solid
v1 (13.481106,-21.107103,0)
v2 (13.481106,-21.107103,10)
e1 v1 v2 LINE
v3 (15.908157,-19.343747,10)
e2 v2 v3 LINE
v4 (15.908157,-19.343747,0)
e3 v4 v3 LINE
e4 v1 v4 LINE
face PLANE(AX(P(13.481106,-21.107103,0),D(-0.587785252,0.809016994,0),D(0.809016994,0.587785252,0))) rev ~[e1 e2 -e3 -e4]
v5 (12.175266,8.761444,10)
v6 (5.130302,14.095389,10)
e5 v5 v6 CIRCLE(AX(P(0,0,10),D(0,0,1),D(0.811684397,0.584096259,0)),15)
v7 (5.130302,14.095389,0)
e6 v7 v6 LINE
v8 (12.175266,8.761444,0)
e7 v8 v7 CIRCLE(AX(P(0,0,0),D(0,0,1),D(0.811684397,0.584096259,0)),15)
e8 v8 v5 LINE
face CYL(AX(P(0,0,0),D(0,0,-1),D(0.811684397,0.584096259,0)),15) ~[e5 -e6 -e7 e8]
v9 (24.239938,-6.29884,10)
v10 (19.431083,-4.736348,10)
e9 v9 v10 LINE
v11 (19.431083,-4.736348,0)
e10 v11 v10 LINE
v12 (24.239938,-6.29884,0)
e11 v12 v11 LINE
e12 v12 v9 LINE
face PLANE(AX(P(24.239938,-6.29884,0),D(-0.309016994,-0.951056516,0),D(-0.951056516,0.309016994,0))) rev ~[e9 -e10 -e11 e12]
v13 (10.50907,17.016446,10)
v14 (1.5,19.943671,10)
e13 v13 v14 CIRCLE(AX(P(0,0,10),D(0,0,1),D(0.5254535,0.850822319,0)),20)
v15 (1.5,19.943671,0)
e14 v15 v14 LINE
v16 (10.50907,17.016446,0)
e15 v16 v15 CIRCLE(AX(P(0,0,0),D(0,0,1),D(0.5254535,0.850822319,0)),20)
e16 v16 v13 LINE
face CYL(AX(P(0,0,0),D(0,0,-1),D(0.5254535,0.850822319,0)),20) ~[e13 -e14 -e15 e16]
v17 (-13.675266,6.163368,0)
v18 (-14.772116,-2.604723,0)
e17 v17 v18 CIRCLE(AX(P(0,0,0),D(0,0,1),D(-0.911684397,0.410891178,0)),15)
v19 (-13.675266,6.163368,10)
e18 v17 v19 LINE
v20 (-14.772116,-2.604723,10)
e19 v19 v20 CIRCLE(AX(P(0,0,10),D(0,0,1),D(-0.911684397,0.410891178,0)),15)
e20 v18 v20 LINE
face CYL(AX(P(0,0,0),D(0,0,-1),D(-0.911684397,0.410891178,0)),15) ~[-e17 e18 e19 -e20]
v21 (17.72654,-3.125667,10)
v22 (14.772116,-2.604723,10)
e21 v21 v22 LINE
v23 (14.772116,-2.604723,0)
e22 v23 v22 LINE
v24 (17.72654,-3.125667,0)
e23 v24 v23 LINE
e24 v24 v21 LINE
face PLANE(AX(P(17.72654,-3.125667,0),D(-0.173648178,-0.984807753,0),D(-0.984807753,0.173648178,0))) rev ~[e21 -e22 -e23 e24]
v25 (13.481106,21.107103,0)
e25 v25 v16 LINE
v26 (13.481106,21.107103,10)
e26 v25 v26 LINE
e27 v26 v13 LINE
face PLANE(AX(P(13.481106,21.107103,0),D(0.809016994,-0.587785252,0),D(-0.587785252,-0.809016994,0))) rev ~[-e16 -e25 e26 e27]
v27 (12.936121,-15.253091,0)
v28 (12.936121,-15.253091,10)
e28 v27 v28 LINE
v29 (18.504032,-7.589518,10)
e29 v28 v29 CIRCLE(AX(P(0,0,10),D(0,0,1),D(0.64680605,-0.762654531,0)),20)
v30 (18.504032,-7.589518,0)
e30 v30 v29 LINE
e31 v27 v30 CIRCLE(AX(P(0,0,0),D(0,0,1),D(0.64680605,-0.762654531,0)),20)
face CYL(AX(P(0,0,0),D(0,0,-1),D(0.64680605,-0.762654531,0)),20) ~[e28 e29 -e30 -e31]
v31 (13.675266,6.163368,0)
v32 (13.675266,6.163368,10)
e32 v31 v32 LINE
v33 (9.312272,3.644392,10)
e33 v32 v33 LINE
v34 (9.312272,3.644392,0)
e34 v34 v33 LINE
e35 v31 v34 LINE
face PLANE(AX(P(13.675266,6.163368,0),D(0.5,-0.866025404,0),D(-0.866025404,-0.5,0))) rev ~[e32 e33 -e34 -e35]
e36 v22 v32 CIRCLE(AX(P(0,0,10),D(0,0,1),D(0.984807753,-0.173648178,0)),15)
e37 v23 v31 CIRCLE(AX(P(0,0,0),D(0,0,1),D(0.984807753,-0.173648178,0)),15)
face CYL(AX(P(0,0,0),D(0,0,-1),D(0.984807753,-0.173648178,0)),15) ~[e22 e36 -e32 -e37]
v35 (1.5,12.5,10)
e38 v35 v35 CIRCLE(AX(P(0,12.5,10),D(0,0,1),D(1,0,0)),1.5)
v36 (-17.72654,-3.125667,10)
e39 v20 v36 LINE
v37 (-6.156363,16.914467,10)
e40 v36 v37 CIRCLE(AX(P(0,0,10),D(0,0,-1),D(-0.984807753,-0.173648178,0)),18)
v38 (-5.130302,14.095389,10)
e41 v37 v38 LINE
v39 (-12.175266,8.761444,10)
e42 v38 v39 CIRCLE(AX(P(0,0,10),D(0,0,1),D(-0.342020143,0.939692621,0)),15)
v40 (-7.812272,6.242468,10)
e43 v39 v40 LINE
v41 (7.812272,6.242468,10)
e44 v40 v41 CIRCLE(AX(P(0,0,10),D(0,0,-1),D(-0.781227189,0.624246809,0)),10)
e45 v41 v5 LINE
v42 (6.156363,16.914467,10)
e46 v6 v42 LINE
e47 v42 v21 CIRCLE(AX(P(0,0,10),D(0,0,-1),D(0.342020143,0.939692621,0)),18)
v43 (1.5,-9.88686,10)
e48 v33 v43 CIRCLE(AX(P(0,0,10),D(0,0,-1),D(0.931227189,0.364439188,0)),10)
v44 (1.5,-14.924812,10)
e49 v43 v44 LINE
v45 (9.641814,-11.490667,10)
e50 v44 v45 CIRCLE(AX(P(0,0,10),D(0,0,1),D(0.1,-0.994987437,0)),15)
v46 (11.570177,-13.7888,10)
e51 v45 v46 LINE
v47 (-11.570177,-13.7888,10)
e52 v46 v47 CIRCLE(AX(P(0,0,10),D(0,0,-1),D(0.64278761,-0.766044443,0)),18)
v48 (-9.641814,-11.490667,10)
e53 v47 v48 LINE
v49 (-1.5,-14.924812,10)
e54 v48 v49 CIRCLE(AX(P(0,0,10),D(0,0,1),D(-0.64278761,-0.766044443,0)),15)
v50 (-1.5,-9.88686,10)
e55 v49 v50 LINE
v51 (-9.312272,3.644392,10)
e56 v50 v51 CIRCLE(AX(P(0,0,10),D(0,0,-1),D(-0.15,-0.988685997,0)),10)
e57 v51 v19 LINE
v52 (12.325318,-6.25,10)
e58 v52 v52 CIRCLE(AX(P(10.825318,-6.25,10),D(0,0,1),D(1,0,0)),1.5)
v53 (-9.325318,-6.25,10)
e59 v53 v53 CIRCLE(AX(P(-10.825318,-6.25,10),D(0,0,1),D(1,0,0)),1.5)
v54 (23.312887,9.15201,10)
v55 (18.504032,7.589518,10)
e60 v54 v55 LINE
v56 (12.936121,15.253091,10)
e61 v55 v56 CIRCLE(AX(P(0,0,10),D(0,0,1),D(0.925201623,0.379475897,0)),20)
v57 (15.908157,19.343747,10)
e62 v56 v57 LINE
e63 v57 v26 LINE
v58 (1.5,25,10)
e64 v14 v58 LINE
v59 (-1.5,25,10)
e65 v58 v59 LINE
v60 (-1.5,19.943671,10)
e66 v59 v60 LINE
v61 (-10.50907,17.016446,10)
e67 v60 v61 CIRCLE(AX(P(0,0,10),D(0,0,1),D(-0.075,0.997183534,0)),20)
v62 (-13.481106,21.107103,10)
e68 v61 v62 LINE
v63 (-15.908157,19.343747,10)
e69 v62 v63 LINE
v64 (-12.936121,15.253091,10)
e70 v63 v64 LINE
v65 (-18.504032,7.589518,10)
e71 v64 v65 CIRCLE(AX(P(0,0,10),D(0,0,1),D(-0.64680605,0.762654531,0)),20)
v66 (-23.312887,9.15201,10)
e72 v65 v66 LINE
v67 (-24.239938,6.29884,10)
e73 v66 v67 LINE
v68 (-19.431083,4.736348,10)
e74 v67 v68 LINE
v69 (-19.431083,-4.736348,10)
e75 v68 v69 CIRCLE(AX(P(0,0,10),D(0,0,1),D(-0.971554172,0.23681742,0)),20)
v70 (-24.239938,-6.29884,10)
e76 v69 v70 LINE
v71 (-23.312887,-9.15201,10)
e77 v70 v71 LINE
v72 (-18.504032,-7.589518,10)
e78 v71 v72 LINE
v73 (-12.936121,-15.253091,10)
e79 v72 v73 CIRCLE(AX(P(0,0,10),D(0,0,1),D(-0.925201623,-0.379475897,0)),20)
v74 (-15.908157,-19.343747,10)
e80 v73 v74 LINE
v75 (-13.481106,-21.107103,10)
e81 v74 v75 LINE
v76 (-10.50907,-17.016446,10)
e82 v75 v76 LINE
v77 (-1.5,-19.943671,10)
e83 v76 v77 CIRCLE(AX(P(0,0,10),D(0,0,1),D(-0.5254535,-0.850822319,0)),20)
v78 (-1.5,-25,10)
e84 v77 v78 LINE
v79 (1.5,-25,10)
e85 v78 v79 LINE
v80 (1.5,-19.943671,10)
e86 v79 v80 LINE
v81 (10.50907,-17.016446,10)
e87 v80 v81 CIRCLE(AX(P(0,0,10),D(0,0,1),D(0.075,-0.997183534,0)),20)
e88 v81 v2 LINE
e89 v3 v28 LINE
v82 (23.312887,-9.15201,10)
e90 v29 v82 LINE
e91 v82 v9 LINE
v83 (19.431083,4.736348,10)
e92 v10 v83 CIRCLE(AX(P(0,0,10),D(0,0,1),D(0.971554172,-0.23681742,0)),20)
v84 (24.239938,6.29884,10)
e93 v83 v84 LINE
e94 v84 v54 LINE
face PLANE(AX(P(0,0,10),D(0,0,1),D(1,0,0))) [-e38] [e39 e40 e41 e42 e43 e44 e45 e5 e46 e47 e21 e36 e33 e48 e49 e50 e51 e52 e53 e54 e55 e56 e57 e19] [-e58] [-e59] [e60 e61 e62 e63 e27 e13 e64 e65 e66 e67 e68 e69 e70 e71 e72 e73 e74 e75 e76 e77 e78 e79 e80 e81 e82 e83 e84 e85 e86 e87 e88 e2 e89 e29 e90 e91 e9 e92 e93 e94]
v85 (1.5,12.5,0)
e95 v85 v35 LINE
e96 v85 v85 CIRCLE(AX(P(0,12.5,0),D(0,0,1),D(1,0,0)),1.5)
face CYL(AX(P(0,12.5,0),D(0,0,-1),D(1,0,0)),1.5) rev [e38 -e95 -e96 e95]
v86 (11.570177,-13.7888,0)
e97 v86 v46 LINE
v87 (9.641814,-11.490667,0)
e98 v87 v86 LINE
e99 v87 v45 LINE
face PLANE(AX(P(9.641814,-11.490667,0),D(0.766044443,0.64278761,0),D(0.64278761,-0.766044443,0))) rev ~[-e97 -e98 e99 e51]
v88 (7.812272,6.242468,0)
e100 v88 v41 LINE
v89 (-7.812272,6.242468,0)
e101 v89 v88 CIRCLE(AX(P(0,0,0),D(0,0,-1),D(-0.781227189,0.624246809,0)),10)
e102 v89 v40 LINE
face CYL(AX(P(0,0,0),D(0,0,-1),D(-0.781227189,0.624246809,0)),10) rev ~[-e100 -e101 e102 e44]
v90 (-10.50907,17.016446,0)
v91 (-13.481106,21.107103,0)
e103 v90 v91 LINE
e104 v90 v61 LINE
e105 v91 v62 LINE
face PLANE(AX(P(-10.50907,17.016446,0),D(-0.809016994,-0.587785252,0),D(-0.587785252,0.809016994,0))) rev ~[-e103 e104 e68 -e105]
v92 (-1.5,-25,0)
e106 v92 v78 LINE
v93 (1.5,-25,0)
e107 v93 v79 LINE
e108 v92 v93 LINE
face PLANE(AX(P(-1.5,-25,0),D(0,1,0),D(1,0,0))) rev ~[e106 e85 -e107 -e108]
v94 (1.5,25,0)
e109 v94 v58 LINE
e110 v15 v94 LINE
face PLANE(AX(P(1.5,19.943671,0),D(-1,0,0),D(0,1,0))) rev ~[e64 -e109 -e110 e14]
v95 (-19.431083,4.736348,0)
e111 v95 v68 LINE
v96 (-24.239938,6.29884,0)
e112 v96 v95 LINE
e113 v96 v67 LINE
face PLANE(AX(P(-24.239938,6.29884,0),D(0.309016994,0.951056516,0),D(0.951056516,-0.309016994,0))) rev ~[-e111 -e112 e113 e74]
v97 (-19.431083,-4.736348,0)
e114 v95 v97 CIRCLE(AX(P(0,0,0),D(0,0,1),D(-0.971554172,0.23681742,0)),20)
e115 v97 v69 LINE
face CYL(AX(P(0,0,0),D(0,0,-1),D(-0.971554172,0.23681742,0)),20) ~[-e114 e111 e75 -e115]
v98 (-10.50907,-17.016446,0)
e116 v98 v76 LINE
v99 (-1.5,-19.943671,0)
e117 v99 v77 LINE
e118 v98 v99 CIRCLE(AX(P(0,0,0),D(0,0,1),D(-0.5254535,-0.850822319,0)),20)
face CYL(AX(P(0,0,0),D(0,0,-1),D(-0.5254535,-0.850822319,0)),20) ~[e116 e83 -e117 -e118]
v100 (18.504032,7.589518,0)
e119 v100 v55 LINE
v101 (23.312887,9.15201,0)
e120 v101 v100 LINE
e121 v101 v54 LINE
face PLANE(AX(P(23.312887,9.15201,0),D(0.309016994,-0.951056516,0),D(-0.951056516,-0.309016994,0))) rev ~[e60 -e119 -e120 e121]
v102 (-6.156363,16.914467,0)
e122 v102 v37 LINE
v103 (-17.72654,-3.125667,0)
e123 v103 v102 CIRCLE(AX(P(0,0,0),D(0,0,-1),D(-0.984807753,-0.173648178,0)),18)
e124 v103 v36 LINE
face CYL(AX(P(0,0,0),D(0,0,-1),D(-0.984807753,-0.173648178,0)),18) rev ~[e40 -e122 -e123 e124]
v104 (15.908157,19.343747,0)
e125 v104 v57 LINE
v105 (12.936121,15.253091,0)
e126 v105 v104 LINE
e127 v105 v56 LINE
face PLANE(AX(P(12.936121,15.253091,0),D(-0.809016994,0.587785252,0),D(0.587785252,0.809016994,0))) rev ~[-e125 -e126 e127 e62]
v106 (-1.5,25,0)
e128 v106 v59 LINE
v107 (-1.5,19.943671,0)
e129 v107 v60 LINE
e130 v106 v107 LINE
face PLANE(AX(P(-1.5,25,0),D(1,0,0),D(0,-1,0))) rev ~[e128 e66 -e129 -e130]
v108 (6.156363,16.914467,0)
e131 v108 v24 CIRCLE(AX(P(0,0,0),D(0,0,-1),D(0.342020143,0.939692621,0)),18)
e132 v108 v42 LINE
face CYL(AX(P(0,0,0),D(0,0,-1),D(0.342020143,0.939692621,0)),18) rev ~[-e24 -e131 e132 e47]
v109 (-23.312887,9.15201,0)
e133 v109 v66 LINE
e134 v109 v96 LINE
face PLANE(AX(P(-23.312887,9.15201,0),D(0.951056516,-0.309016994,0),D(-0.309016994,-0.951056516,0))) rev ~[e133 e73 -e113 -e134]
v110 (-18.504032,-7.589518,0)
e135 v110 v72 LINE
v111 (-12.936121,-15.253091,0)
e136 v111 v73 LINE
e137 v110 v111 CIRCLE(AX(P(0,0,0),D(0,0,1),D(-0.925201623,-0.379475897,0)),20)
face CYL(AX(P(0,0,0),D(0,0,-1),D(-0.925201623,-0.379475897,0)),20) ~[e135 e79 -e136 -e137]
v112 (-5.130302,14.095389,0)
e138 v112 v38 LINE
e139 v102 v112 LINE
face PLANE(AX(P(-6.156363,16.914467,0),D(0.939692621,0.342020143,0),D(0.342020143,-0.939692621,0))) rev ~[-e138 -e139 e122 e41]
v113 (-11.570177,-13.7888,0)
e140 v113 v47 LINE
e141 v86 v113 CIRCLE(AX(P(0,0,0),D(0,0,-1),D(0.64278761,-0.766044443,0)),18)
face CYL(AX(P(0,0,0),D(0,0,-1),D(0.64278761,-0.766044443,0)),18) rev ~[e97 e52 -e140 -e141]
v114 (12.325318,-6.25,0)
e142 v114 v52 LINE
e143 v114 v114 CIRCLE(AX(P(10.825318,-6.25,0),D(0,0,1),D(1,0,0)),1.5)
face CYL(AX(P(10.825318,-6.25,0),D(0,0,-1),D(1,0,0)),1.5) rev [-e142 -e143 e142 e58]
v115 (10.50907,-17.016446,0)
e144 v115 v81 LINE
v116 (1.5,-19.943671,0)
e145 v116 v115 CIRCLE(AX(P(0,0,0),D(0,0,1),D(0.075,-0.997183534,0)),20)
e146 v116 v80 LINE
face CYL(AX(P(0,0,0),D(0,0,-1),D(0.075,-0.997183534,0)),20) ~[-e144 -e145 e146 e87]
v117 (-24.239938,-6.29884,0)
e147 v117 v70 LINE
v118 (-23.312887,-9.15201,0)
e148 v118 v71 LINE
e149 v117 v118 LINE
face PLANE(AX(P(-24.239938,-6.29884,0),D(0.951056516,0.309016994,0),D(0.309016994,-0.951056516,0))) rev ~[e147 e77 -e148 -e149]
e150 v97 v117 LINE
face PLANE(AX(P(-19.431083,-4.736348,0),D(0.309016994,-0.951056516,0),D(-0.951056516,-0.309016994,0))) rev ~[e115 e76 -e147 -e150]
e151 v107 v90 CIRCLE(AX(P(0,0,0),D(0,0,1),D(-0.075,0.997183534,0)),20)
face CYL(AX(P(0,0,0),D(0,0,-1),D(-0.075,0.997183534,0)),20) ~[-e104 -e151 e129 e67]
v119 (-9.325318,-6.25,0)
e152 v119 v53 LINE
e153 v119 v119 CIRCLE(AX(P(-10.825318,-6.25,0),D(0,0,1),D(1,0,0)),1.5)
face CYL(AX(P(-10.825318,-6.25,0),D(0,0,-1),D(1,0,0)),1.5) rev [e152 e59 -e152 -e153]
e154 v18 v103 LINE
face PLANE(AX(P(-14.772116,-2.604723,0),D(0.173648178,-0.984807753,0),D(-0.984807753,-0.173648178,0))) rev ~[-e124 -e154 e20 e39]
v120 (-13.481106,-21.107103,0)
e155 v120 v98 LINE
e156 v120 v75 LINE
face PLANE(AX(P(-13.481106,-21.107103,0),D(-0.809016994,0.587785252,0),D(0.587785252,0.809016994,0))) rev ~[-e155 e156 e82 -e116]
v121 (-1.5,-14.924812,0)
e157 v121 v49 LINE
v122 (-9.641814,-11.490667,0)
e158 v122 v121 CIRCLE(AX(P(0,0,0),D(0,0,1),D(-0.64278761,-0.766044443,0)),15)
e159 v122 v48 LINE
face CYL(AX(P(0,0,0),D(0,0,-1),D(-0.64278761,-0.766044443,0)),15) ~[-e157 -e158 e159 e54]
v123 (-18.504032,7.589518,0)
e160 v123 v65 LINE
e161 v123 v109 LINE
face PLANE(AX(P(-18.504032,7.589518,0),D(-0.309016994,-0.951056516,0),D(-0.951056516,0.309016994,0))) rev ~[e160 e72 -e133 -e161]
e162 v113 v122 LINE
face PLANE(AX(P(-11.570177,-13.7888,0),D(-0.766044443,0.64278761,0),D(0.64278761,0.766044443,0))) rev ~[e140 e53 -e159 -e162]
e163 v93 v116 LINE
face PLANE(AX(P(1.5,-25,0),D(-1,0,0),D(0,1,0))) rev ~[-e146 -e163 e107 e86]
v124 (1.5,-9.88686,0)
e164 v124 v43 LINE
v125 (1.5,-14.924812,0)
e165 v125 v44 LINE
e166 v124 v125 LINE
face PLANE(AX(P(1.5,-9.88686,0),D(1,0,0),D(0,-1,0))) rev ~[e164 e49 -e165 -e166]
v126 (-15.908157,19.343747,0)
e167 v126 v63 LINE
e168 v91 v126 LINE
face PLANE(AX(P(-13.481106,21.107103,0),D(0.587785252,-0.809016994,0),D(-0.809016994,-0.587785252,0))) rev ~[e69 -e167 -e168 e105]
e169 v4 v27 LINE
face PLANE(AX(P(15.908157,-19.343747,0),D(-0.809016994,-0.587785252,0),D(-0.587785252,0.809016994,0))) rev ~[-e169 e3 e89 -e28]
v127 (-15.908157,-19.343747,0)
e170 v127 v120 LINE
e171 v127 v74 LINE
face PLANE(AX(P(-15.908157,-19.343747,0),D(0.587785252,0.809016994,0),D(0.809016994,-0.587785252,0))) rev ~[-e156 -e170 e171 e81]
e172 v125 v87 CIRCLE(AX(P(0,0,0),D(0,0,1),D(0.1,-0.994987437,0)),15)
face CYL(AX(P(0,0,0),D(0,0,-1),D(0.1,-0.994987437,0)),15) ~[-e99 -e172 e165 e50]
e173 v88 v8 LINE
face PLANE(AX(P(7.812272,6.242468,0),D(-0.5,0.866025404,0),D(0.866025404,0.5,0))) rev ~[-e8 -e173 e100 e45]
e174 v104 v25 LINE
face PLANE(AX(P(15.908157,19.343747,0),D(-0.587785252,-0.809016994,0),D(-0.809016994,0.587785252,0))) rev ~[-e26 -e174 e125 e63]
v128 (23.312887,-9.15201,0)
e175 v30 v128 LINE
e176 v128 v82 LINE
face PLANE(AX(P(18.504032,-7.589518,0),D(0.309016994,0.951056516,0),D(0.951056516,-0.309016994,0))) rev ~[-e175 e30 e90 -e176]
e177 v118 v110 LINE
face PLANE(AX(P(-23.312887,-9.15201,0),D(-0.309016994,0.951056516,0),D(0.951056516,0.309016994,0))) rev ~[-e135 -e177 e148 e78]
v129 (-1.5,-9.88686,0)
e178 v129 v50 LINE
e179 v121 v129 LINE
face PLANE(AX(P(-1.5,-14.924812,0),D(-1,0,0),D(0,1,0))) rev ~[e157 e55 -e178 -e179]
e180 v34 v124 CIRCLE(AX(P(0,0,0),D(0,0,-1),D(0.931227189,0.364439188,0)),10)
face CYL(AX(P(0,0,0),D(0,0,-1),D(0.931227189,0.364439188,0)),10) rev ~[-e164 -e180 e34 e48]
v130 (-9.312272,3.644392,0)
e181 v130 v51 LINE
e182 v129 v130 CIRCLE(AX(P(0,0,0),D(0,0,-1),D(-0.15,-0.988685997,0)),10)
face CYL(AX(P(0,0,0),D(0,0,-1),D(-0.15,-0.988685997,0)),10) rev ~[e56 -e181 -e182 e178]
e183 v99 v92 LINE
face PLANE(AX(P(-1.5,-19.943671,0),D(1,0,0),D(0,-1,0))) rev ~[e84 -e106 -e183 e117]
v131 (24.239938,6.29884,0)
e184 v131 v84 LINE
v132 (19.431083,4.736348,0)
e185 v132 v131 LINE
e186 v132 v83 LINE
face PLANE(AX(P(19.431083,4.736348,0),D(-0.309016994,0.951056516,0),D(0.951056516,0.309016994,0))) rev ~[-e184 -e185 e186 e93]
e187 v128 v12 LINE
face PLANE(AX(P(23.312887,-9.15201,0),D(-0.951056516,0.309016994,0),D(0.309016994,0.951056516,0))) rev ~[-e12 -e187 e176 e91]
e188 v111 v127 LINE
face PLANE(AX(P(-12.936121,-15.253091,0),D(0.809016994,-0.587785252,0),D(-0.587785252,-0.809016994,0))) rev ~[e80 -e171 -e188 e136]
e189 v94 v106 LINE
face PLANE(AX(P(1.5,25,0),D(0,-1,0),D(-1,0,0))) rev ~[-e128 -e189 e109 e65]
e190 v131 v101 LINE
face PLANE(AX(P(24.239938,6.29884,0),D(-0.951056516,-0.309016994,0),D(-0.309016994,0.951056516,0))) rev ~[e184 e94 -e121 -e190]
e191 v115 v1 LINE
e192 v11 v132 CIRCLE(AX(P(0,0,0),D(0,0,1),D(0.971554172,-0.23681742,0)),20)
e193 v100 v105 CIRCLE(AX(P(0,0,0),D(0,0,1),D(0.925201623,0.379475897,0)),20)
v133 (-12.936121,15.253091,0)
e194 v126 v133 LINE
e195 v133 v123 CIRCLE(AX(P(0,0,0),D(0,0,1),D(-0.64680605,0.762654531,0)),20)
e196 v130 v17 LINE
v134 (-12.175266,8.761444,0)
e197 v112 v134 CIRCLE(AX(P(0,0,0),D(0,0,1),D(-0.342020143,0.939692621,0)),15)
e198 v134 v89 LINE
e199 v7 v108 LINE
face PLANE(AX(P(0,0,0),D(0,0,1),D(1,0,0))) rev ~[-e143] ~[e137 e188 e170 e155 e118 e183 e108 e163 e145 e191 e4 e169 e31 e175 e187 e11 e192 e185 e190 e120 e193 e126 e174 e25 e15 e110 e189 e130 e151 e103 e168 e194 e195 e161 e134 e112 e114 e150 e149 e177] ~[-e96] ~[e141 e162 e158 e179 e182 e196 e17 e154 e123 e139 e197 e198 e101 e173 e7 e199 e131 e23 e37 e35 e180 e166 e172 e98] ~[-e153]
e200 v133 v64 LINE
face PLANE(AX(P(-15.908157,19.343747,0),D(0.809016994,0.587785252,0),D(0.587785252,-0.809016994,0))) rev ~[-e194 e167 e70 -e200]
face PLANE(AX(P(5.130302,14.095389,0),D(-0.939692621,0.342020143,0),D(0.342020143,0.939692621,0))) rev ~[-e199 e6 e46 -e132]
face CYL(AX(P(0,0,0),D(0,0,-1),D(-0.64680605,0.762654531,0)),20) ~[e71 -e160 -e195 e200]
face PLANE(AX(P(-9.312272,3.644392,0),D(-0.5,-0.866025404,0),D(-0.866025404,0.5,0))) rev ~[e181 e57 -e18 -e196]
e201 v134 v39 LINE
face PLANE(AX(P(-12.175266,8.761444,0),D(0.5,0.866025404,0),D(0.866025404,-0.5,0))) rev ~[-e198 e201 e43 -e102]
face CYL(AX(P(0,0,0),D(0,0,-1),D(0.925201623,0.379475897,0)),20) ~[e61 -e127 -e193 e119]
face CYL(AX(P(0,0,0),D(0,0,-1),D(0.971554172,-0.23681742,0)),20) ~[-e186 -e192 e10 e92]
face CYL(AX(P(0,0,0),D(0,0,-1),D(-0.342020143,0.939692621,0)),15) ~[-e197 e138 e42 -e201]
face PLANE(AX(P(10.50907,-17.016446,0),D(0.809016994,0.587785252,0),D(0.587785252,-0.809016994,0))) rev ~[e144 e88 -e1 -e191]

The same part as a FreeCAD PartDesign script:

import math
import FreeCAD as App
import Part
import Sketcher
from FreeCAD import Vector
Q = App.Units.Quantity

doc = App.newDocument("Part")
params = doc.addObject("Spreadsheet::Sheet", "Params")
for row, (alias, value) in enumerate([
    ("sketch1_diameter", "3 mm"),
    ("sketch1_radius", "20 mm"),
    ("sketch1_width", "3 mm"),
    ("sketch1_length", "3 mm"),
    ("pad1_length", "10 mm"),
    ("sketch2_radius", "10 mm"),
    ("sketch2_radius2", "15 mm"),
    ("sketch2_radius3", "18 mm"),
    ("pocket1_length", "10 mm"),
], start=1):
    params.set(f"A{row}", alias)
    params.set(f"B{row}", "=" + value)
    params.setAlias(f"B{row}", alias)

body = doc.addObject("PartDesign::Body", "Body")

sketch1 = doc.addObject("Sketcher::SketchObject", "Sketch")
body.addObject(sketch1)
sketch1.AttachmentSupport = (doc.XY_Plane, [""])
sketch1.MapMode = "FlatFace"
sketch1.addGeometry(Part.LineSegment(Vector(1.5, 19.943671, 0), Vector(1.5, 25, 0)), False)
sketch1.addGeometry(Part.LineSegment(Vector(1.5, 25, 0), Vector(-1.5, 25, 0)), False)
sketch1.addGeometry(Part.LineSegment(Vector(-1.5, 25, 0), Vector(-1.5, 19.943671, 0)), False)
sketch1.addGeometry(Part.ArcOfCircle(Part.Circle(Vector(0, 0, 0), Vector(0, 0, 1), 20), math.radians(94.301222), math.radians(121.698778)), False)
sketch1.addGeometry(Part.LineSegment(Vector(-10.50907, 17.016446, 0), Vector(-13.481106, 21.107103, 0)), False)
sketch1.addGeometry(Part.LineSegment(Vector(-13.481106, 21.107103, 0), Vector(-15.908157, 19.343747, 0)), False)
sketch1.addGeometry(Part.LineSegment(Vector(-15.908157, 19.343747, 0), Vector(-12.936121, 15.253091, 0)), False)
sketch1.addGeometry(Part.ArcOfCircle(Part.Circle(Vector(0, 0, 0), Vector(0, 0, 1), 20), math.radians(130.301222), math.radians(157.698778)), False)
sketch1.addGeometry(Part.LineSegment(Vector(-18.504032, 7.589518, 0), Vector(-23.312887, 9.15201, 0)), False)
sketch1.addGeometry(Part.LineSegment(Vector(-23.312887, 9.15201, 0), Vector(-24.239938, 6.29884, 0)), False)
sketch1.addGeometry(Part.LineSegment(Vector(-24.239938, 6.29884, 0), Vector(-19.431083, 4.736348, 0)), False)
sketch1.addGeometry(Part.ArcOfCircle(Part.Circle(Vector(0, 0, 0), Vector(0, 0, 1), 20), math.radians(166.301222), math.radians(193.698778)), False)
sketch1.addGeometry(Part.LineSegment(Vector(-19.431083, -4.736348, 0), Vector(-24.239938, -6.29884, 0)), False)
sketch1.addGeometry(Part.LineSegment(Vector(-24.239938, -6.29884, 0), Vector(-23.312887, -9.15201, 0)), False)
sketch1.addGeometry(Part.LineSegment(Vector(-23.312887, -9.15201, 0), Vector(-18.504032, -7.589518, 0)), False)
sketch1.addGeometry(Part.ArcOfCircle(Part.Circle(Vector(0, 0, 0), Vector(0, 0, 1), 20), math.radians(-157.698778), math.radians(-130.301222)), False)
sketch1.addGeometry(Part.LineSegment(Vector(-12.936121, -15.253091, 0), Vector(-15.908157, -19.343747, 0)), False)
sketch1.addGeometry(Part.LineSegment(Vector(-15.908157, -19.343747, 0), Vector(-13.481106, -21.107103, 0)), False)
sketch1.addGeometry(Part.LineSegment(Vector(-13.481106, -21.107103, 0), Vector(-10.50907, -17.016446, 0)), False)
sketch1.addGeometry(Part.ArcOfCircle(Part.Circle(Vector(0, 0, 0), Vector(0, 0, 1), 20), math.radians(-121.698778), math.radians(-94.301222)), False)
sketch1.addGeometry(Part.LineSegment(Vector(-1.5, -19.943671, 0), Vector(-1.5, -25, 0)), False)
sketch1.addGeometry(Part.LineSegment(Vector(-1.5, -25, 0), Vector(1.5, -25, 0)), False)
sketch1.addGeometry(Part.LineSegment(Vector(1.5, -25, 0), Vector(1.5, -19.943671, 0)), False)
sketch1.addGeometry(Part.ArcOfCircle(Part.Circle(Vector(0, 0, 0), Vector(0, 0, 1), 20), math.radians(-85.698778), math.radians(-58.301222)), False)
sketch1.addGeometry(Part.LineSegment(Vector(10.50907, -17.016446, 0), Vector(13.481106, -21.107103, 0)), False)
sketch1.addGeometry(Part.LineSegment(Vector(13.481106, -21.107103, 0), Vector(15.908157, -19.343747, 0)), False)
sketch1.addGeometry(Part.LineSegment(Vector(15.908157, -19.343747, 0), Vector(12.936121, -15.253091, 0)), False)
sketch1.addGeometry(Part.ArcOfCircle(Part.Circle(Vector(0, 0, 0), Vector(0, 0, 1), 20), math.radians(-49.698778), math.radians(-22.301222)), False)
sketch1.addGeometry(Part.LineSegment(Vector(18.504032, -7.589518, 0), Vector(23.312887, -9.15201, 0)), False)
sketch1.addGeometry(Part.LineSegment(Vector(23.312887, -9.15201, 0), Vector(24.239938, -6.29884, 0)), False)
sketch1.addGeometry(Part.LineSegment(Vector(24.239938, -6.29884, 0), Vector(19.431083, -4.736348, 0)), False)
sketch1.addGeometry(Part.ArcOfCircle(Part.Circle(Vector(0, 0, 0), Vector(0, 0, 1), 20), math.radians(-13.698778), math.radians(13.698778)), False)
sketch1.addGeometry(Part.LineSegment(Vector(19.431083, 4.736348, 0), Vector(24.239938, 6.29884, 0)), False)
sketch1.addGeometry(Part.LineSegment(Vector(24.239938, 6.29884, 0), Vector(23.312887, 9.15201, 0)), False)
sketch1.addGeometry(Part.LineSegment(Vector(23.312887, 9.15201, 0), Vector(18.504032, 7.589518, 0)), False)
sketch1.addGeometry(Part.ArcOfCircle(Part.Circle(Vector(0, 0, 0), Vector(0, 0, 1), 20), math.radians(22.301222), math.radians(49.698778)), False)
sketch1.addGeometry(Part.LineSegment(Vector(12.936121, 15.253091, 0), Vector(15.908157, 19.343747, 0)), False)
sketch1.addGeometry(Part.LineSegment(Vector(15.908157, 19.343747, 0), Vector(13.481106, 21.107103, 0)), False)
sketch1.addGeometry(Part.LineSegment(Vector(13.481106, 21.107103, 0), Vector(10.50907, 17.016446, 0)), False)
sketch1.addGeometry(Part.ArcOfCircle(Part.Circle(Vector(0, 0, 0), Vector(0, 0, 1), 20), math.radians(58.301222), math.radians(85.698778)), False)
sketch1.addGeometry(Part.Circle(Vector(-10.825318, -6.25, 0), Vector(0, 0, 1), 1.5), False)
sketch1.addGeometry(Part.Circle(Vector(10.825318, -6.25, 0), Vector(0, 0, 1), 1.5), False)
sketch1.addGeometry(Part.Circle(Vector(0, 12.5, 0), Vector(0, 0, 1), 1.5), False)
sketch1.addConstraint(Sketcher.Constraint("Coincident", 0, 2, 1, 1))
sketch1.addConstraint(Sketcher.Constraint("Coincident", 1, 2, 2, 1))
sketch1.addConstraint(Sketcher.Constraint("Coincident", 2, 2, 3, 1))
sketch1.addConstraint(Sketcher.Constraint("Coincident", 3, 2, 4, 1))
sketch1.addConstraint(Sketcher.Constraint("Coincident", 4, 2, 5, 1))
sketch1.addConstraint(Sketcher.Constraint("Coincident", 5, 2, 6, 1))
sketch1.addConstraint(Sketcher.Constraint("Coincident", 6, 2, 7, 1))
sketch1.addConstraint(Sketcher.Constraint("Coincident", 7, 2, 8, 1))
sketch1.addConstraint(Sketcher.Constraint("Coincident", 8, 2, 9, 1))
sketch1.addConstraint(Sketcher.Constraint("Coincident", 9, 2, 10, 1))
sketch1.addConstraint(Sketcher.Constraint("Coincident", 10, 2, 11, 1))
sketch1.addConstraint(Sketcher.Constraint("Coincident", 11, 2, 12, 1))
sketch1.addConstraint(Sketcher.Constraint("Coincident", 12, 2, 13, 1))
sketch1.addConstraint(Sketcher.Constraint("Coincident", 13, 2, 14, 1))
sketch1.addConstraint(Sketcher.Constraint("Coincident", 14, 2, 15, 1))
sketch1.addConstraint(Sketcher.Constraint("Coincident", 15, 2, 16, 1))
sketch1.addConstraint(Sketcher.Constraint("Coincident", 16, 2, 17, 1))
sketch1.addConstraint(Sketcher.Constraint("Coincident", 17, 2, 18, 1))
sketch1.addConstraint(Sketcher.Constraint("Coincident", 18, 2, 19, 1))
sketch1.addConstraint(Sketcher.Constraint("Coincident", 19, 2, 20, 1))
sketch1.addConstraint(Sketcher.Constraint("Coincident", 20, 2, 21, 1))
sketch1.addConstraint(Sketcher.Constraint("Coincident", 21, 2, 22, 1))
sketch1.addConstraint(Sketcher.Constraint("Coincident", 22, 2, 23, 1))
sketch1.addConstraint(Sketcher.Constraint("Coincident", 23, 2, 24, 1))
sketch1.addConstraint(Sketcher.Constraint("Coincident", 24, 2, 25, 1))
sketch1.addConstraint(Sketcher.Constraint("Coincident", 25, 2, 26, 1))
sketch1.addConstraint(Sketcher.Constraint("Coincident", 26, 2, 27, 1))
sketch1.addConstraint(Sketcher.Constraint("Coincident", 27, 2, 28, 1))
sketch1.addConstraint(Sketcher.Constraint("Coincident", 28, 2, 29, 1))
sketch1.addConstraint(Sketcher.Constraint("Coincident", 29, 2, 30, 1))
sketch1.addConstraint(Sketcher.Constraint("Coincident", 30, 2, 31, 1))
sketch1.addConstraint(Sketcher.Constraint("Coincident", 31, 2, 32, 1))
sketch1.addConstraint(Sketcher.Constraint("Coincident", 32, 2, 33, 1))
sketch1.addConstraint(Sketcher.Constraint("Coincident", 33, 2, 34, 1))
sketch1.addConstraint(Sketcher.Constraint("Coincident", 34, 2, 35, 1))
sketch1.addConstraint(Sketcher.Constraint("Coincident", 35, 2, 36, 1))
sketch1.addConstraint(Sketcher.Constraint("Coincident", 36, 2, 37, 1))
sketch1.addConstraint(Sketcher.Constraint("Coincident", 37, 2, 38, 1))
sketch1.addConstraint(Sketcher.Constraint("Coincident", 38, 2, 39, 1))
sketch1.addConstraint(Sketcher.Constraint("Coincident", 39, 2, 0, 1))
sketch1.addConstraint(Sketcher.Constraint("Vertical", 0))
sketch1.addConstraint(Sketcher.Constraint("Horizontal", 1))
sketch1.addConstraint(Sketcher.Constraint("Vertical", 2))
sketch1.addConstraint(Sketcher.Constraint("Vertical", 20))
sketch1.addConstraint(Sketcher.Constraint("Horizontal", 21))
sketch1.addConstraint(Sketcher.Constraint("Vertical", 22))
sketch1.addConstraint(Sketcher.Constraint("Coincident", 3, 3, -1, 1))
sketch1.addConstraint(Sketcher.Constraint("Coincident", 7, 3, -1, 1))
sketch1.addConstraint(Sketcher.Constraint("Coincident", 11, 3, -1, 1))
sketch1.addConstraint(Sketcher.Constraint("Coincident", 15, 3, -1, 1))
sketch1.addConstraint(Sketcher.Constraint("Coincident", 19, 3, -1, 1))
sketch1.addConstraint(Sketcher.Constraint("Coincident", 23, 3, -1, 1))
sketch1.addConstraint(Sketcher.Constraint("Coincident", 27, 3, -1, 1))
sketch1.addConstraint(Sketcher.Constraint("Coincident", 31, 3, -1, 1))
sketch1.addConstraint(Sketcher.Constraint("Coincident", 35, 3, -1, 1))
sketch1.addConstraint(Sketcher.Constraint("Coincident", 39, 3, -1, 1))
sketch1.addConstraint(Sketcher.Constraint("Equal", 3, 7))
sketch1.addConstraint(Sketcher.Constraint("Equal", 7, 11))
sketch1.addConstraint(Sketcher.Constraint("Equal", 11, 15))
sketch1.addConstraint(Sketcher.Constraint("Equal", 15, 19))
sketch1.addConstraint(Sketcher.Constraint("Equal", 19, 23))
sketch1.addConstraint(Sketcher.Constraint("Equal", 23, 27))
sketch1.addConstraint(Sketcher.Constraint("Equal", 27, 31))
sketch1.addConstraint(Sketcher.Constraint("Equal", 31, 35))
sketch1.addConstraint(Sketcher.Constraint("Equal", 35, 39))
sketch1.addConstraint(Sketcher.Constraint("Equal", 40, 41))
sketch1.addConstraint(Sketcher.Constraint("Equal", 41, 42))
sketch1.addConstraint(Sketcher.Constraint("Symmetric", 0, 2, 20, 2, -1, 1))
sketch1.addConstraint(Sketcher.Constraint("Symmetric", 4, 2, 24, 2, -1, 1))
sketch1.addConstraint(Sketcher.Constraint("Symmetric", 5, 2, 25, 2, -1, 1))
sketch1.addConstraint(Sketcher.Constraint("Symmetric", 8, 2, 28, 2, -1, 1))
sketch1.addConstraint(Sketcher.Constraint("Symmetric", 9, 2, 29, 2, -1, 1))
sketch1.addConstraint(Sketcher.Constraint("Symmetric", 12, 2, 32, 2, -1, 1))
sketch1.addConstraint(Sketcher.Constraint("Symmetric", 13, 2, 33, 2, -1, 1))
sketch1.addConstraint(Sketcher.Constraint("Symmetric", 16, 2, 36, 2, -1, 1))
sketch1.addConstraint(Sketcher.Constraint("Symmetric", 17, 2, 37, 2, -1, 1))
sketch1.addConstraint(Sketcher.Constraint("Symmetric", 40, 3, 41, 3, -2))
sketch1.addConstraint(Sketcher.Constraint("Symmetric", 17, 2, 24, 2, -2))
sketch1.addConstraint(Sketcher.Constraint("Symmetric", 16, 2, 25, 2, -2))
sketch1.addConstraint(Sketcher.Constraint("Symmetric", 13, 2, 28, 2, -2))
sketch1.addConstraint(Sketcher.Constraint("Symmetric", 12, 2, 29, 2, -2))
sketch1.addConstraint(Sketcher.Constraint("PointOnObject", 42, 3, -2))
sketch1.addConstraint(Sketcher.Constraint("Perpendicular", 4, 5))
sketch1.addConstraint(Sketcher.Constraint("Perpendicular", 5, 6))
sketch1.addConstraint(Sketcher.Constraint("Perpendicular", 8, 9))
sketch1.addConstraint(Sketcher.Constraint("Perpendicular", 9, 10))
sketch1.addConstraint(Sketcher.Constraint("Perpendicular", 12, 13))
sketch1.addConstraint(Sketcher.Constraint("Perpendicular", 13, 14))
sketch1.addConstraint(Sketcher.Constraint("Perpendicular", 16, 17))
sketch1.addConstraint(Sketcher.Constraint("Perpendicular", 17, 18))
sketch1.addConstraint(Sketcher.Constraint("Parallel", 6, 24))
sketch1.addConstraint(Sketcher.Constraint("Perpendicular", 25, 26))
sketch1.addConstraint(Sketcher.Constraint("Parallel", 10, 28))
sketch1.addConstraint(Sketcher.Constraint("Perpendicular", 29, 30))
sketch1.addConstraint(Sketcher.Constraint("Parallel", 14, 32))
sketch1.addConstraint(Sketcher.Constraint("Perpendicular", 33, 34))
sketch1.addConstraint(Sketcher.Constraint("Parallel", 18, 36))
sketch1.addConstraint(Sketcher.Constraint("Perpendicular", 37, 38))
sketch1.addConstraint(Sketcher.Constraint("Horizontal", 19, 2, 22, 2))
sketch1.addConstraint(Sketcher.Constraint("Horizontal", 2, 2, 39, 2))
sketch1.addConstraint(Sketcher.Constraint("Equal", 4, 6))
sketch1.addConstraint(Sketcher.Constraint("Equal", 6, 8))
sketch1.addConstraint(Sketcher.Constraint("Equal", 5, 9))
sketch1.addConstraint(Sketcher.Constraint("Equal", 8, 10))
sketch1.addConstraint(Sketcher.Constraint("Diameter", 40, Q("3 mm")))
sketch1.addConstraint(Sketcher.Constraint("Radius", 3, Q("20 mm")))
sketch1.addConstraint(Sketcher.Constraint("DistanceX", 1, 2, 1, 1, Q("3 mm")))
sketch1.addConstraint(Sketcher.Constraint("Angle", 4, Q("126 deg")))
sketch1.addConstraint(Sketcher.Constraint("Angle", 8, Q("162 deg")))
sketch1.addConstraint(Sketcher.Constraint("Distance", 5, Q("3 mm")))
sketch1.addConstraint(Sketcher.Constraint("DistanceY", -1, 1, 0, 2, Q("25 mm")))
sketch1.addConstraint(Sketcher.Constraint("DistanceY", -1, 1, 42, 3, Q("12.5 mm")))
sketch1.addConstraint(Sketcher.Constraint("DistanceY", 40, 3, -1, 1, Q("6.25 mm")))
sketch1.addConstraint(Sketcher.Constraint("DistanceY", 3, 2, 5, 2, Q("2.327301 mm")))
sketch1.addConstraint(Sketcher.Constraint("DistanceX", 12, 2, 40, 3, Q("13.414621 mm")))
sketch1.setExpression("Constraints[104]", "Params.sketch1_diameter")
sketch1.setExpression("Constraints[105]", "Params.sketch1_radius")
sketch1.setExpression("Constraints[106]", "Params.sketch1_width")
sketch1.setExpression("Constraints[109]", "Params.sketch1_length")
pad1 = doc.addObject("PartDesign::Pad", "Pad")
body.addObject(pad1)
pad1.Profile = sketch1
pad1.setExpression("Length", "Params.pad1_length")

sketch2 = doc.addObject("Sketcher::SketchObject", "Sketch001")
body.addObject(sketch2)
sketch2.AttachmentSupport = (doc.XY_Plane, [""])
sketch2.MapMode = "FlatFace"
sketch2.addGeometry(Part.LineSegment(Vector(-13.675266, 6.163368, 0), Vector(-9.312272, 3.644392, 0)), False)
sketch2.addGeometry(Part.ArcOfCircle(Part.Circle(Vector(0, 0, 0), Vector(0, 0, 1), 10), math.radians(158.626927), math.radians(261.373073)), False)
sketch2.addGeometry(Part.LineSegment(Vector(-1.5, -9.88686, 0), Vector(-1.5, -14.924812, 0)), False)
sketch2.addGeometry(Part.ArcOfCircle(Part.Circle(Vector(0, 0, 0), Vector(0, 0, 1), 15), math.radians(-130), math.radians(-95.73917)), False)
sketch2.addGeometry(Part.LineSegment(Vector(-9.641814, -11.490667, 0), Vector(-11.570177, -13.7888, 0)), False)
sketch2.addGeometry(Part.ArcOfCircle(Part.Circle(Vector(0, 0, 0), Vector(0, 0, 1), 18), math.radians(-130), math.radians(-50)), False)
sketch2.addGeometry(Part.LineSegment(Vector(11.570177, -13.7888, 0), Vector(9.641814, -11.490667, 0)), False)
sketch2.addGeometry(Part.ArcOfCircle(Part.Circle(Vector(0, 0, 0), Vector(0, 0, 1), 15), math.radians(-84.26083), math.radians(-50)), False)
sketch2.addGeometry(Part.LineSegment(Vector(1.5, -14.924812, 0), Vector(1.5, -9.88686, 0)), False)
sketch2.addGeometry(Part.ArcOfCircle(Part.Circle(Vector(0, 0, 0), Vector(0, 0, 1), 10), math.radians(-81.373073), math.radians(21.373073)), False)
sketch2.addGeometry(Part.LineSegment(Vector(9.312272, 3.644392, 0), Vector(13.675266, 6.163368, 0)), False)
sketch2.addGeometry(Part.ArcOfCircle(Part.Circle(Vector(0, 0, 0), Vector(0, 0, 1), 15), math.radians(-10), math.radians(24.26083)), False)
sketch2.addGeometry(Part.LineSegment(Vector(14.772116, -2.604723, 0), Vector(17.72654, -3.125667, 0)), False)
sketch2.addGeometry(Part.ArcOfCircle(Part.Circle(Vector(0, 0, 0), Vector(0, 0, 1), 18), math.radians(-10), math.radians(70)), False)
sketch2.addGeometry(Part.LineSegment(Vector(6.156363, 16.914467, 0), Vector(5.130302, 14.095389, 0)), False)
sketch2.addGeometry(Part.ArcOfCircle(Part.Circle(Vector(0, 0, 0), Vector(0, 0, 1), 15), math.radians(35.73917), math.radians(70)), False)
sketch2.addGeometry(Part.LineSegment(Vector(12.175266, 8.761444, 0), Vector(7.812272, 6.242468, 0)), False)
sketch2.addGeometry(Part.ArcOfCircle(Part.Circle(Vector(0, 0, 0), Vector(0, 0, 1), 10), math.radians(38.626927), math.radians(141.373073)), False)
sketch2.addGeometry(Part.LineSegment(Vector(-7.812272, 6.242468, 0), Vector(-12.175266, 8.761444, 0)), False)
sketch2.addGeometry(Part.ArcOfCircle(Part.Circle(Vector(0, 0, 0), Vector(0, 0, 1), 15), math.radians(110), math.radians(144.26083)), False)
sketch2.addGeometry(Part.LineSegment(Vector(-5.130302, 14.095389, 0), Vector(-6.156363, 16.914467, 0)), False)
sketch2.addGeometry(Part.ArcOfCircle(Part.Circle(Vector(0, 0, 0), Vector(0, 0, 1), 18), math.radians(110), math.radians(190)), False)
sketch2.addGeometry(Part.LineSegment(Vector(-17.72654, -3.125667, 0), Vector(-14.772116, -2.604723, 0)), False)
sketch2.addGeometry(Part.ArcOfCircle(Part.Circle(Vector(0, 0, 0), Vector(0, 0, 1), 15), math.radians(155.73917), math.radians(190)), False)
sketch2.addConstraint(Sketcher.Constraint("Coincident", 0, 2, 1, 1))
sketch2.addConstraint(Sketcher.Constraint("Coincident", 1, 2, 2, 1))
sketch2.addConstraint(Sketcher.Constraint("Coincident", 2, 2, 3, 2))
sketch2.addConstraint(Sketcher.Constraint("Coincident", 3, 1, 4, 1))
sketch2.addConstraint(Sketcher.Constraint("Coincident", 4, 2, 5, 1))
sketch2.addConstraint(Sketcher.Constraint("Coincident", 5, 2, 6, 1))
sketch2.addConstraint(Sketcher.Constraint("Coincident", 6, 2, 7, 2))
sketch2.addConstraint(Sketcher.Constraint("Coincident", 7, 1, 8, 1))
sketch2.addConstraint(Sketcher.Constraint("Coincident", 8, 2, 9, 1))
sketch2.addConstraint(Sketcher.Constraint("Coincident", 9, 2, 10, 1))
sketch2.addConstraint(Sketcher.Constraint("Coincident", 10, 2, 11, 2))
sketch2.addConstraint(Sketcher.Constraint("Coincident", 11, 1, 12, 1))
sketch2.addConstraint(Sketcher.Constraint("Coincident", 12, 2, 13, 1))
sketch2.addConstraint(Sketcher.Constraint("Coincident", 13, 2, 14, 1))
sketch2.addConstraint(Sketcher.Constraint("Coincident", 14, 2, 15, 2))
sketch2.addConstraint(Sketcher.Constraint("Coincident", 15, 1, 16, 1))
sketch2.addConstraint(Sketcher.Constraint("Coincident", 16, 2, 17, 1))
sketch2.addConstraint(Sketcher.Constraint("Coincident", 17, 2, 18, 1))
sketch2.addConstraint(Sketcher.Constraint("Coincident", 18, 2, 19, 2))
sketch2.addConstraint(Sketcher.Constraint("Coincident", 19, 1, 20, 1))
sketch2.addConstraint(Sketcher.Constraint("Coincident", 20, 2, 21, 1))
sketch2.addConstraint(Sketcher.Constraint("Coincident", 21, 2, 22, 1))
sketch2.addConstraint(Sketcher.Constraint("Coincident", 22, 2, 23, 2))
sketch2.addConstraint(Sketcher.Constraint("Coincident", 23, 1, 0, 1))
sketch2.addConstraint(Sketcher.Constraint("Vertical", 2))
sketch2.addConstraint(Sketcher.Constraint("Vertical", 8))
sketch2.addConstraint(Sketcher.Constraint("Coincident", 1, 3, -1, 1))
sketch2.addConstraint(Sketcher.Constraint("Coincident", 3, 3, -1, 1))
sketch2.addConstraint(Sketcher.Constraint("Coincident", 5, 3, -1, 1))
sketch2.addConstraint(Sketcher.Constraint("Coincident", 7, 3, -1, 1))
sketch2.addConstraint(Sketcher.Constraint("Coincident", 9, 3, -1, 1))
sketch2.addConstraint(Sketcher.Constraint("Coincident", 11, 3, -1, 1))
sketch2.addConstraint(Sketcher.Constraint("Coincident", 13, 3, -1, 1))
sketch2.addConstraint(Sketcher.Constraint("Coincident", 15, 3, -1, 1))
sketch2.addConstraint(Sketcher.Constraint("Coincident", 17, 3, -1, 1))
sketch2.addConstraint(Sketcher.Constraint("Coincident", 19, 3, -1, 1))
sketch2.addConstraint(Sketcher.Constraint("Coincident", 21, 3, -1, 1))
sketch2.addConstraint(Sketcher.Constraint("Coincident", 23, 3, -1, 1))
sketch2.addConstraint(Sketcher.Constraint("Equal", 3, 7))
sketch2.addConstraint(Sketcher.Constraint("Equal", 1, 9))
sketch2.addConstraint(Sketcher.Constraint("Equal", 7, 11))
sketch2.addConstraint(Sketcher.Constraint("Equal", 5, 13))
sketch2.addConstraint(Sketcher.Constraint("Equal", 11, 15))
sketch2.addConstraint(Sketcher.Constraint("Equal", 9, 17))
sketch2.addConstraint(Sketcher.Constraint("Equal", 15, 19))
sketch2.addConstraint(Sketcher.Constraint("Equal", 13, 21))
sketch2.addConstraint(Sketcher.Constraint("Equal", 19, 23))
sketch2.addConstraint(Sketcher.Constraint("Parallel", 10, 16))
sketch2.addConstraint(Sketcher.Constraint("Parallel", 0, 18))
sketch2.addConstraint(Sketcher.Constraint("Horizontal", 4, 2, 5, 2))
sketch2.addConstraint(Sketcher.Constraint("Horizontal", 3, 1, 6, 2))
sketch2.addConstraint(Sketcher.Constraint("Horizontal", 2, 2, 7, 1))
sketch2.addConstraint(Sketcher.Constraint("Horizontal", 0, 2, 9, 2))
sketch2.addConstraint(Sketcher.Constraint("Horizontal", 16, 2, 17, 2))
sketch2.addConstraint(Sketcher.Constraint("Horizontal", 15, 1, 18, 2))
sketch2.addConstraint(Sketcher.Constraint("Horizontal", 14, 2, 19, 1))
sketch2.addConstraint(Sketcher.Constraint("Horizontal", 13, 2, 20, 2))
sketch2.addConstraint(Sketcher.Constraint("Horizontal", 12, 2, 21, 2))
sketch2.addConstraint(Sketcher.Constraint("Horizontal", 11, 1, 22, 2))
sketch2.addConstraint(Sketcher.Constraint("Equal", 10, 16))
sketch2.addConstraint(Sketcher.Constraint("Radius", 1, Q("10 mm")))
sketch2.addConstraint(Sketcher.Constraint("Radius", 3, Q("15 mm")))
sketch2.addConstraint(Sketcher.Constraint("Radius", 5, Q("18 mm")))
sketch2.addConstraint(Sketcher.Constraint("Angle", 0, Q("-30 deg")))
sketch2.addConstraint(Sketcher.Constraint("Angle", 4, Q("-130 deg")))
sketch2.addConstraint(Sketcher.Constraint("Angle", 12, Q("-10 deg")))
sketch2.addConstraint(Sketcher.Constraint("Angle", 14, Q("-110 deg")))
sketch2.addConstraint(Sketcher.Constraint("DistanceX", 2, 2, 7, 1, Q("3 mm")))
sketch2.addConstraint(Sketcher.Constraint("DistanceX", 15, 1, 10, 2, Q("1.5 mm")))
sketch2.addConstraint(Sketcher.Constraint("DistanceY", 6, 2, 12, 2, Q("8.364999 mm")))
sketch2.addConstraint(Sketcher.Constraint("DistanceY", 17, 2, 20, 2, Q("10.671999 mm")))
sketch2.addConstraint(Sketcher.Constraint("DistanceY", 4, 2, -1, 1, Q("13.7888 mm")))
sketch2.setExpression("Constraints[60]", "Params.sketch2_radius")
sketch2.setExpression("Constraints[61]", "Params.sketch2_radius2")
sketch2.setExpression("Constraints[62]", "Params.sketch2_radius3")
pocket1 = doc.addObject("PartDesign::Pocket", "Pocket")
body.addObject(pocket1)
pocket1.Profile = sketch2
pocket1.setExpression("Length", "Params.pocket1_length")
pocket1.Reversed = True

doc.recompute()
